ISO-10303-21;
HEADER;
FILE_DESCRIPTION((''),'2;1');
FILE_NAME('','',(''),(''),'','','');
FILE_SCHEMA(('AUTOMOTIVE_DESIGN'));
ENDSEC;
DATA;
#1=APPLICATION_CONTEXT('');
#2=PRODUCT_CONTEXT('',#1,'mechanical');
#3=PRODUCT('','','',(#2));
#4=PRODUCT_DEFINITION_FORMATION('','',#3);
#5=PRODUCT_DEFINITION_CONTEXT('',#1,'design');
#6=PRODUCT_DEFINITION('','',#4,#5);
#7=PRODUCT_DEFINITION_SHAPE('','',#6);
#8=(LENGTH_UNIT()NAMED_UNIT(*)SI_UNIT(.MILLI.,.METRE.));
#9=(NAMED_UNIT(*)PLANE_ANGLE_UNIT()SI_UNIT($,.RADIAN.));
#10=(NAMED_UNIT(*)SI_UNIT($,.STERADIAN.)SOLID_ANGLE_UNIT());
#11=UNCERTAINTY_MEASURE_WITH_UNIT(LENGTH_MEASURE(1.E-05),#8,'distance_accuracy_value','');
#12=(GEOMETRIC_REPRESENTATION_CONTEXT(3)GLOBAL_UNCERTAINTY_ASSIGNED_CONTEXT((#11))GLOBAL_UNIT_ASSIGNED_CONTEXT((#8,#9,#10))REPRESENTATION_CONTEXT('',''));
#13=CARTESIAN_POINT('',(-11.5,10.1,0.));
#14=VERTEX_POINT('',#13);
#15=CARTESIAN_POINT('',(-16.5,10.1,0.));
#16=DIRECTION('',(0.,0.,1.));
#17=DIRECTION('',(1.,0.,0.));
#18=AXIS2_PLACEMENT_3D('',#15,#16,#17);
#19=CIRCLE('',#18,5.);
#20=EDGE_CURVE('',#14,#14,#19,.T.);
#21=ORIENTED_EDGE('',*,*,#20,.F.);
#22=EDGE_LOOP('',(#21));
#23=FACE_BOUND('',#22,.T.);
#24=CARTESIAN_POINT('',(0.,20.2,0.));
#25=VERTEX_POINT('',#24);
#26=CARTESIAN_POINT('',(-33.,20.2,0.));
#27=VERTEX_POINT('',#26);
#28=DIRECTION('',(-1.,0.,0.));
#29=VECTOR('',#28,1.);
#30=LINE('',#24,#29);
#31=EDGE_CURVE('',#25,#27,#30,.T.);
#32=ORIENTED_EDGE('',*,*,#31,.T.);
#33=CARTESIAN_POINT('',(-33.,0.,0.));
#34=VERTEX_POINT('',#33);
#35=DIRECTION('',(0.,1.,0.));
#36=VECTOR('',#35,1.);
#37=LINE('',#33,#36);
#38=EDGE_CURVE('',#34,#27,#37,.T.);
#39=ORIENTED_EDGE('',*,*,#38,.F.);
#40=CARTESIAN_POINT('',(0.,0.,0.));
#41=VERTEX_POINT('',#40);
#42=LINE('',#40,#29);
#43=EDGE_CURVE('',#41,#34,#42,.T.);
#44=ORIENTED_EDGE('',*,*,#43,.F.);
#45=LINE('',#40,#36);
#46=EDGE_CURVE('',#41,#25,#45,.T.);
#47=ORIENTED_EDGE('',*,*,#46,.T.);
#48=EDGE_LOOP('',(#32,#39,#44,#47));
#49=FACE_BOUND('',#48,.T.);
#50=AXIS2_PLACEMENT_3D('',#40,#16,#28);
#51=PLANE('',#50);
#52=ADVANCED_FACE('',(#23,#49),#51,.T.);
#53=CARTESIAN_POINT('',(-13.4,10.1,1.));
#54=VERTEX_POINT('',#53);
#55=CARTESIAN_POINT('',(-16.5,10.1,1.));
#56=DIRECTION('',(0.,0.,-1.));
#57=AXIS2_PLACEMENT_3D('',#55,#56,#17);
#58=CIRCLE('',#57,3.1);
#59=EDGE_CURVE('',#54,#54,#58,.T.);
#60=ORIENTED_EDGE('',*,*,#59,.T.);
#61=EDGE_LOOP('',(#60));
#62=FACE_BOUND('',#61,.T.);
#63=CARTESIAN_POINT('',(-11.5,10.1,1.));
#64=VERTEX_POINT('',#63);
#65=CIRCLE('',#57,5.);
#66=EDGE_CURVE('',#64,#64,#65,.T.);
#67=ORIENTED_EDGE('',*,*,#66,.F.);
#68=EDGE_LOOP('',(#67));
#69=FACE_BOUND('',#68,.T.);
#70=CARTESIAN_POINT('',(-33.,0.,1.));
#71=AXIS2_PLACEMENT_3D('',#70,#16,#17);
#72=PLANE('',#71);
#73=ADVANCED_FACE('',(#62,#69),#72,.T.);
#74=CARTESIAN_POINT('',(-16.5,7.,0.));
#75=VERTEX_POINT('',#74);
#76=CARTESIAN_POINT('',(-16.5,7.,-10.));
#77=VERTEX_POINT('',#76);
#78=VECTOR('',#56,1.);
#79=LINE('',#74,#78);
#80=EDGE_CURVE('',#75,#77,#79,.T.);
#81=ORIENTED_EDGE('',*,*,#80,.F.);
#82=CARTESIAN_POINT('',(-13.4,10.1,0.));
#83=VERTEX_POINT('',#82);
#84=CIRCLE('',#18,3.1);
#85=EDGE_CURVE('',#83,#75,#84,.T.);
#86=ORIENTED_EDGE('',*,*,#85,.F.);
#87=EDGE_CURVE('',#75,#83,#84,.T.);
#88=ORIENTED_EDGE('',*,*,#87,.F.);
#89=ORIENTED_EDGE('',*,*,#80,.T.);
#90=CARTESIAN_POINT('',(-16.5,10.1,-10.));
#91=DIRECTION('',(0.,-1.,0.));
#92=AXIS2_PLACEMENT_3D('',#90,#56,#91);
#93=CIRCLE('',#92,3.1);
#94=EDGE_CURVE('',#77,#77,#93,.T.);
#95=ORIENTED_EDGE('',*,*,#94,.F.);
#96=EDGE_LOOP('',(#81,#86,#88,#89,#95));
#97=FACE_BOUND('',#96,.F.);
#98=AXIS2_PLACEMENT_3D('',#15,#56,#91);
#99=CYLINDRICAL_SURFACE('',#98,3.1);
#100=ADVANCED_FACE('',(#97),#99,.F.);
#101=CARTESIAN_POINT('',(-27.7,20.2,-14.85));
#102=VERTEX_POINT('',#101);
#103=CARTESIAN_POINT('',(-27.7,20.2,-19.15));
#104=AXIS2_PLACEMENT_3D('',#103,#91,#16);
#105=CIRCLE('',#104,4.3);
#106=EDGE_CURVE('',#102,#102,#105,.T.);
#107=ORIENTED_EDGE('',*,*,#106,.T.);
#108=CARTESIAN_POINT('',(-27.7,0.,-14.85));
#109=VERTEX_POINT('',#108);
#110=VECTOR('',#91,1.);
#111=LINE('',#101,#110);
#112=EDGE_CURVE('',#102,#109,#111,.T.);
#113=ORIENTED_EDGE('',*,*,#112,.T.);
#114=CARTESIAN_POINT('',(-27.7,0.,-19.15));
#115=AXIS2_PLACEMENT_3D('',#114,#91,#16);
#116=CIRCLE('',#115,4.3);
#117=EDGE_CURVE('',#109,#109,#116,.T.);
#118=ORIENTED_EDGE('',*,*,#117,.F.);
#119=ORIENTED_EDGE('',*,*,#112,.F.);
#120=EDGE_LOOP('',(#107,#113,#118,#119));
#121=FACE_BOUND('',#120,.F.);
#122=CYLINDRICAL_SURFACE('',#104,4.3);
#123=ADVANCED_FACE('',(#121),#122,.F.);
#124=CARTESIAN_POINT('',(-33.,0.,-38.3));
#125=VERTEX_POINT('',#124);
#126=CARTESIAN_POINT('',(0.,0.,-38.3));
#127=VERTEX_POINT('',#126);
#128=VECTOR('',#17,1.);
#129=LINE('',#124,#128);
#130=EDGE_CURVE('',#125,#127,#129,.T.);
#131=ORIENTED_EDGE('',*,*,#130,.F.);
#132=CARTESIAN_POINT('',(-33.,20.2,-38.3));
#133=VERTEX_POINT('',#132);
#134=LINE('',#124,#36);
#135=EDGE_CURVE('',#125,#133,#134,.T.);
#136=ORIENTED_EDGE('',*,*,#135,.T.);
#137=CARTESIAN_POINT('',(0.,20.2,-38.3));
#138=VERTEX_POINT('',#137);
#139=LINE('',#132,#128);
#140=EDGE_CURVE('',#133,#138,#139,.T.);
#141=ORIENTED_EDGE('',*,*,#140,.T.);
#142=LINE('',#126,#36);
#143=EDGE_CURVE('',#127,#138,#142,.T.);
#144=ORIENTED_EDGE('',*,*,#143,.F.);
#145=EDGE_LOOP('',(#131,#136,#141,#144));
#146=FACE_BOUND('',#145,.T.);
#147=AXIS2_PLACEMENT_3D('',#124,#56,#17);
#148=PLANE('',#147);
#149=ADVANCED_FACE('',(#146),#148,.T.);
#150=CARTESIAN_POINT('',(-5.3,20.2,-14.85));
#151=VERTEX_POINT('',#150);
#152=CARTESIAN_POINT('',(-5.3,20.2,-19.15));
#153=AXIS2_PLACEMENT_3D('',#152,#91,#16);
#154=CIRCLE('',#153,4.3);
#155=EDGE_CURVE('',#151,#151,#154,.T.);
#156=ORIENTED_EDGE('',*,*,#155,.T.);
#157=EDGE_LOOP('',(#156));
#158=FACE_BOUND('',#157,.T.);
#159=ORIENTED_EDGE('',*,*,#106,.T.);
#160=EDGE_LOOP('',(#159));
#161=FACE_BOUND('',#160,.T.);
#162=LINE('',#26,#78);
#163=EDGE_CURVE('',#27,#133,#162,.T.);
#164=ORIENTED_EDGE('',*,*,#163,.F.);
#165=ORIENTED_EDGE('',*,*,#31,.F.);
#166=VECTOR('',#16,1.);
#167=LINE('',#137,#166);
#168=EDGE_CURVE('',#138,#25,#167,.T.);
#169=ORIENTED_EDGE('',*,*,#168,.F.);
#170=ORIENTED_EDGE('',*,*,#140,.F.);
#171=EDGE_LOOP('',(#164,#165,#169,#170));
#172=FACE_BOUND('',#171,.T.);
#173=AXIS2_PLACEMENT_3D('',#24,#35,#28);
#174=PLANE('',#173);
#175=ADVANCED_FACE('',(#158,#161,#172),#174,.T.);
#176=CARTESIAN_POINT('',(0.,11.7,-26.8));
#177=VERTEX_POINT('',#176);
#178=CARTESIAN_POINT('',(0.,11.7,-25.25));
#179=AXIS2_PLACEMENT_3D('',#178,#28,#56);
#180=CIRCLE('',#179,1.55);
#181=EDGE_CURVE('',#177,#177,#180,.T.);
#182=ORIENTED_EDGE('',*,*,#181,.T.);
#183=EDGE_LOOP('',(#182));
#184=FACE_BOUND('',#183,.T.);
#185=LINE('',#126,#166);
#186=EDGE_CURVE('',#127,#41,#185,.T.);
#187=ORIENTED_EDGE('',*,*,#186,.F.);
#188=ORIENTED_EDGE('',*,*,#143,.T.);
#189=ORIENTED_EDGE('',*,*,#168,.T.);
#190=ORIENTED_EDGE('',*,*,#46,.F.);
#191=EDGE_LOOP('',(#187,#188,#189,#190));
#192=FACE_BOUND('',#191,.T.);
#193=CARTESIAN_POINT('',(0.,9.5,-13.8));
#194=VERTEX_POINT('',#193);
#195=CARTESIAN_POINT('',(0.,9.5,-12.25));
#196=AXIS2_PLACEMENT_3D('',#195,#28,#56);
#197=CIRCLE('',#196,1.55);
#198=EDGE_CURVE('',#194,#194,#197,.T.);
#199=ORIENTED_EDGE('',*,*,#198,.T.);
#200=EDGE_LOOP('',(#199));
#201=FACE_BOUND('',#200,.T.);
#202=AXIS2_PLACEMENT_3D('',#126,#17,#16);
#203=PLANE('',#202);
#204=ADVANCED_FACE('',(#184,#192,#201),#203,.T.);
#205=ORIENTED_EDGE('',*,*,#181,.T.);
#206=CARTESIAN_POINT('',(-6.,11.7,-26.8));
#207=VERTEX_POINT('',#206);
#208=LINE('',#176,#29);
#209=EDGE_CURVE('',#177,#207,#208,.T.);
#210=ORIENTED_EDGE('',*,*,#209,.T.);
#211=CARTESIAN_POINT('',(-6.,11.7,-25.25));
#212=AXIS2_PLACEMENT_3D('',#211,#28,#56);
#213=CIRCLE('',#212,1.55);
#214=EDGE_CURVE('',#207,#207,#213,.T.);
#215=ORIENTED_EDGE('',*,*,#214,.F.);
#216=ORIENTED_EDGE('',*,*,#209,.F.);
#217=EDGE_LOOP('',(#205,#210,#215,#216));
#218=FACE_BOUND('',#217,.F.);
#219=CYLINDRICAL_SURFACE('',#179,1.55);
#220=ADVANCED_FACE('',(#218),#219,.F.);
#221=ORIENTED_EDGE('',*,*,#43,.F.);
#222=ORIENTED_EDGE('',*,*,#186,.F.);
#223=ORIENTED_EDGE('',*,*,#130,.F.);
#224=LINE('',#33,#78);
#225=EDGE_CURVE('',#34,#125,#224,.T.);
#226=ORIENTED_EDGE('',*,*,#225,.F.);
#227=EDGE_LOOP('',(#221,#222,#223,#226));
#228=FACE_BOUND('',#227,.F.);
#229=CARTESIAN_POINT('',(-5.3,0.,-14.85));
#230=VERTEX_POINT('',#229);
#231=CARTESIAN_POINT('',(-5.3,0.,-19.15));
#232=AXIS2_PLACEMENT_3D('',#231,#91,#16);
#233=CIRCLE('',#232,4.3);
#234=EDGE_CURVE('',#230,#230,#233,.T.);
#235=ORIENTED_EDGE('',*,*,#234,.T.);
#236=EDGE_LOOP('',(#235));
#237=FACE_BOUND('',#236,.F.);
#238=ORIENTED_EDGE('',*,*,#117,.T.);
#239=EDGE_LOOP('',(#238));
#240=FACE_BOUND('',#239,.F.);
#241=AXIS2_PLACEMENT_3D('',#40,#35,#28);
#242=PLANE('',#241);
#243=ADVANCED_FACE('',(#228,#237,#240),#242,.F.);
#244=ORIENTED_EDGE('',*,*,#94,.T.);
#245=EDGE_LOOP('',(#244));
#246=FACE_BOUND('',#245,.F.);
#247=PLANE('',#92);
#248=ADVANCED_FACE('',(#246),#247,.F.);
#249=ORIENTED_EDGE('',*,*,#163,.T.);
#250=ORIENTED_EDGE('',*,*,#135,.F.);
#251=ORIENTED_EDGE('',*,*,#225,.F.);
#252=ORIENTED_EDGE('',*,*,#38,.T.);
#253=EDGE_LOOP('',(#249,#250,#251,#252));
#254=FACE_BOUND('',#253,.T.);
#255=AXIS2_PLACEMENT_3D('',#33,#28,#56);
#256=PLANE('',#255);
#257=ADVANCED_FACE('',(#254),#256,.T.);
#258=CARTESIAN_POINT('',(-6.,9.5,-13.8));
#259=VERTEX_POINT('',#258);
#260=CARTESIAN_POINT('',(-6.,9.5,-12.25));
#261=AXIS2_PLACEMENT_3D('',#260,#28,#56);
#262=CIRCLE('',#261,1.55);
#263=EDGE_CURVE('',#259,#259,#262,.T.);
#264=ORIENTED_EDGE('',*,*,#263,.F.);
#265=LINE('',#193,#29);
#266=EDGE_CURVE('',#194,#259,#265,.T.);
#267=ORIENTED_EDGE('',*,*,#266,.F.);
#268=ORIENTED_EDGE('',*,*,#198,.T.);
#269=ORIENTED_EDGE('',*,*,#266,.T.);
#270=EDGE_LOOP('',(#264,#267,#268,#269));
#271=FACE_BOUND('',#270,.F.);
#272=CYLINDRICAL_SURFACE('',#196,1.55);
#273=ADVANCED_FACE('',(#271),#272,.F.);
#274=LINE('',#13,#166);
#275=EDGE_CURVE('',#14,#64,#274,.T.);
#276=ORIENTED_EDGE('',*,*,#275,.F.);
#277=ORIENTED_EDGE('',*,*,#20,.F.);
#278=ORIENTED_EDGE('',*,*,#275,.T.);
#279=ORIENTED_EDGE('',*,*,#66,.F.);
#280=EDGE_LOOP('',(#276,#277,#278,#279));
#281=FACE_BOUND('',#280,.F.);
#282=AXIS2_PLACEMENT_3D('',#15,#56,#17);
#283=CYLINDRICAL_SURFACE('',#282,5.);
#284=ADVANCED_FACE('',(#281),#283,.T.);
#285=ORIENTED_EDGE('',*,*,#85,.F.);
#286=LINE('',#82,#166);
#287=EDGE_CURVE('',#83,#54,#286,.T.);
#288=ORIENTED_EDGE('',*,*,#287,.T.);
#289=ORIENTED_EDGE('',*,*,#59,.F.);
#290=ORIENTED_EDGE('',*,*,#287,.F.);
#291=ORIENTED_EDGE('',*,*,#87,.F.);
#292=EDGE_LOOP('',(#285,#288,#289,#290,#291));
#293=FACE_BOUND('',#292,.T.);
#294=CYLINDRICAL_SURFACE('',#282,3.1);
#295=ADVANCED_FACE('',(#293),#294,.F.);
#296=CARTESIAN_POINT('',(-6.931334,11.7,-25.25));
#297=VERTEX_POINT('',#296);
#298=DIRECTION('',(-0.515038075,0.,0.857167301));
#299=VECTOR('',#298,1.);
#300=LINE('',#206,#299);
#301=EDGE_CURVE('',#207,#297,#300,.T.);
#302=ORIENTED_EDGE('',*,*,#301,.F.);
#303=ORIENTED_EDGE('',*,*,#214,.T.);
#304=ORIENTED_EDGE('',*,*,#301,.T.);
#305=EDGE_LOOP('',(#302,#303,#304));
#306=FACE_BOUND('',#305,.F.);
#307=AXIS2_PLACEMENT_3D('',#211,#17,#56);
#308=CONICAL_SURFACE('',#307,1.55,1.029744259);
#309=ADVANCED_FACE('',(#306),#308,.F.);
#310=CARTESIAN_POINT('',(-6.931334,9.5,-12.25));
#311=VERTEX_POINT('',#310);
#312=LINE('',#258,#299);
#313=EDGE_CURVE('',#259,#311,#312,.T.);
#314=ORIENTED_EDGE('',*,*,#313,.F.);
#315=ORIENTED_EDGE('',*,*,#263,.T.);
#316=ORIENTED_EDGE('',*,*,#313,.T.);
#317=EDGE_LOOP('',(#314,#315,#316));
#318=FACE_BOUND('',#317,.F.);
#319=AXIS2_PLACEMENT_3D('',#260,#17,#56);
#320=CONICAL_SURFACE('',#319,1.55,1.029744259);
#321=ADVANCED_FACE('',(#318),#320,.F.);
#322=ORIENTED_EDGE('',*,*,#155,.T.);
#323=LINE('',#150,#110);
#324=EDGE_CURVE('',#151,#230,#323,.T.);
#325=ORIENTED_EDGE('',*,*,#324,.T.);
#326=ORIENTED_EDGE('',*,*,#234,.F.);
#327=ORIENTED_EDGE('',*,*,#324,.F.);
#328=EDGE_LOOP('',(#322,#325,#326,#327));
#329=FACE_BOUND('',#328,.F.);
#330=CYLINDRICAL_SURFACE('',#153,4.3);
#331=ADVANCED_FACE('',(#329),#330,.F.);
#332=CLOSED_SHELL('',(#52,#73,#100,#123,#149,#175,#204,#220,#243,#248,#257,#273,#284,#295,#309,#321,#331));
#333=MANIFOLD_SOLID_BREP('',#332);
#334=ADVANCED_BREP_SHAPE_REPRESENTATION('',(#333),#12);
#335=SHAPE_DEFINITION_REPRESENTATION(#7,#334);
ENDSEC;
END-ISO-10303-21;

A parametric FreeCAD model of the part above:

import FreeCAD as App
import Part
import Sketcher
Q = App.Units.Quantity

doc = App.newDocument("Part")
body = doc.addObject("PartDesign::Body", "Body")

sketch1 = doc.addObject("Sketcher::SketchObject", "Sketch")
body.addObject(sketch1)
sketch1.AttachmentSupport = (doc.XZ_Plane, [""])
sketch1.MapMode = "FlatFace"
sketch1.addGeometry(Part.LineSegment(App.Vector(-33, 0, 0), App.Vector(0, 0, 0)), False)
sketch1.addGeometry(Part.LineSegment(App.Vector(0, 0, 0), App.Vector(0, -38, 0)), False)
sketch1.addGeometry(Part.LineSegment(App.Vector(0, -38, 0), App.Vector(-33, -38, 0)), False)
sketch1.addGeometry(Part.LineSegment(App.Vector(-33, -38, 0), App.Vector(-33, 0, 0)), False)
sketch1.addConstraint(Sketcher.Constraint("Coincident", 0, 2, 1, 1))
sketch1.addConstraint(Sketcher.Constraint("Coincident", 1, 2, 2, 1))
sketch1.addConstraint(Sketcher.Constraint("Coincident", 2, 2, 3, 1))
sketch1.addConstraint(Sketcher.Constraint("Coincident", 3, 2, 0, 1))
sketch1.addConstraint(Sketcher.Constraint("Horizontal", 0))
sketch1.addConstraint(Sketcher.Constraint("Vertical", 1))
sketch1.addConstraint(Sketcher.Constraint("Horizontal", 2))
sketch1.addConstraint(Sketcher.Constraint("Vertical", 3))
sketch1.addConstraint(Sketcher.Constraint("Coincident", 0, 2, -1, 1))
sketch1.addConstraint(Sketcher.Constraint("DistanceX", 0, 1, 0, 2, Q("33 mm")))
sketch1.addConstraint(Sketcher.Constraint("DistanceY", 1, 2, 1, 1, Q("38.3 mm")))
pad1 = doc.addObject("PartDesign::Pad", "Pad")
body.addObject(pad1)
pad1.Profile = sketch1
pad1.Length = 20.2
pad1.Reversed = True

sketch2 = doc.addObject("Sketcher::SketchObject", "Sketch001")
body.addObject(sketch2)
sketch2.AttachmentSupport = (doc.XZ_Plane, [""])
sketch2.MapMode = "FlatFace"
sketch2.AttachmentOffset = App.Placement(App.Vector(0, 0, -20.2), App.Rotation())
sketch2.addGeometry(Part.Circle(App.Vector(-5.3, -19.1, 0), App.Vector(0, 0, 1), 4.3), False)
sketch2.addConstraint(Sketcher.Constraint("Diameter", 0, Q("8.6 mm")))
sketch2.addConstraint(Sketcher.Constraint("DistanceX", 0, 3, -1, 1, Q("5.3 mm")))
sketch2.addConstraint(Sketcher.Constraint("DistanceY", 0, 3, -1, 1, Q("19.15 mm")))
doc.recompute()
hole = doc.addObject("PartDesign::Hole", "Hole")
body.addObject(hole)
hole.Profile = sketch2
hole.ThreadType = "None"
hole.Diameter = 8.6
hole.DepthType = "ThroughAll"
hole.Reversed = True

sketch3 = doc.addObject("Sketcher::SketchObject", "Sketch002")
body.addObject(sketch3)
sketch3.AttachmentSupport = (doc.XZ_Plane, [""])
sketch3.MapMode = "FlatFace"
sketch3.AttachmentOffset = App.Placement(App.Vector(0, 0, -20.2), App.Rotation())
sketch3.addGeometry(Part.Circle(App.Vector(-27.7, -19.1, 0), App.Vector(0, 0, 1), 4.3), False)
sketch3.addConstraint(Sketcher.Constraint("Diameter", 0, Q("8.6 mm")))
sketch3.addConstraint(Sketcher.Constraint("DistanceX", 0, 3, -1, 1, Q("27.7 mm")))
sketch3.addConstraint(Sketcher.Constraint("DistanceY", 0, 3, -1, 1, Q("19.15 mm")))
doc.recompute()
hole2 = doc.addObject("PartDesign::Hole", "Hole001")
body.addObject(hole2)
hole2.Profile = sketch3
hole2.ThreadType = "None"
hole2.Diameter = 8.6
hole2.DepthType = "ThroughAll"
hole2.Reversed = True

sketch4 = doc.addObject("Sketcher::SketchObject", "Sketch003")
body.addObject(sketch4)
sketch4.AttachmentSupport = (doc.YZ_Plane, [""])
sketch4.MapMode = "FlatFace"
sketch4.addGeometry(Part.Circle(App.Vector(9.5, -12.2, 0), App.Vector(0, 0, 1), 1.6), False)
sketch4.addGeometry(Part.Circle(App.Vector(11.7, -25.2, 0), App.Vector(0, 0, 1), 1.6), False)
sketch4.addConstraint(Sketcher.Constraint("Equal", 0, 1))
sketch4.addConstraint(Sketcher.Constraint("Diameter", 0, Q("3.1 mm")))
sketch4.addConstraint(Sketcher.Constraint("DistanceY", 1, 3, 0, 3, Q("13 mm")))
sketch4.addConstraint(Sketcher.Constraint("DistanceX", -1, 1, 0, 3, Q("9.5 mm")))
sketch4.addConstraint(Sketcher.Constraint("DistanceX", -1, 1, 1, 3, Q("11.7 mm")))
sketch4.addConstraint(Sketcher.Constraint("DistanceY", 0, 3, -1, 1, Q("12.25 mm")))
doc.recompute()
hole3 = doc.addObject("PartDesign::Hole", "Hole002")
body.addObject(hole3)
hole3.Profile = sketch4
hole3.ThreadType = "None"
hole3.Diameter = 3.1
hole3.DepthType = "Dimension"
hole3.Depth = 6
hole3.DrillPoint = "Angled"
hole3.DrillPointAngle = 118

sketch5 = doc.addObject("Sketcher::SketchObject", "Sketch004")
body.addObject(sketch5)
sketch5.AttachmentSupport = (doc.XY_Plane, [""])
sketch5.MapMode = "FlatFace"
sketch5.addGeometry(Part.Circle(App.Vector(-16.5, 10.1, 0), App.Vector(0, 0, 1), 5), False)
sketch5.addGeometry(Part.Circle(App.Vector(-16.5, 10.1, 0), App.Vector(0, 0, 1), 3.1), False)
sketch5.addConstraint(Sketcher.Constraint("Coincident", 1, 3, 0, 3))
sketch5.addConstraint(Sketcher.Constraint("Diameter", 0, Q("10 mm")))
sketch5.addConstraint(Sketcher.Constraint("Diameter", 1, Q("6.2 mm")))
sketch5.addConstraint(Sketcher.Constraint("DistanceX", 0, 3, -1, 1, Q("16.5 mm")))
sketch5.addConstraint(Sketcher.Constraint("DistanceY", -1, 1, 0, 3, Q("10.1 mm")))
pad2 = doc.addObject("PartDesign::Pad", "Pad001")
body.addObject(pad2)
pad2.Profile = sketch5
pad2.Length = 1

sketch6 = doc.addObject("Sketcher::SketchObject", "Sketch005")
body.addObject(sketch6)
sketch6.AttachmentSupport = (doc.XY_Plane, [""])
sketch6.MapMode = "FlatFace"
sketch6.addGeometry(Part.Circle(App.Vector(-16.5, 10.1, 0), App.Vector(0, 0, 1), 3.1), False)
sketch6.addConstraint(Sketcher.Constraint("Diameter", 0, Q("6.2 mm")))
sketch6.addConstraint(Sketcher.Constraint("DistanceX", 0, 3, -1, 1, Q("16.5 mm")))
sketch6.addConstraint(Sketcher.Constraint("DistanceY", -1, 1, 0, 3, Q("10.1 mm")))
doc.recompute()
hole4 = doc.addObject("PartDesign::Hole", "Hole003")
body.addObject(hole4)
hole4.Profile = sketch6
hole4.ThreadType = "None"
hole4.Diameter = 6.2
hole4.DepthType = "Dimension"
hole4.Depth = 10
hole4.DrillPoint = "Flat"

doc.recompute()
